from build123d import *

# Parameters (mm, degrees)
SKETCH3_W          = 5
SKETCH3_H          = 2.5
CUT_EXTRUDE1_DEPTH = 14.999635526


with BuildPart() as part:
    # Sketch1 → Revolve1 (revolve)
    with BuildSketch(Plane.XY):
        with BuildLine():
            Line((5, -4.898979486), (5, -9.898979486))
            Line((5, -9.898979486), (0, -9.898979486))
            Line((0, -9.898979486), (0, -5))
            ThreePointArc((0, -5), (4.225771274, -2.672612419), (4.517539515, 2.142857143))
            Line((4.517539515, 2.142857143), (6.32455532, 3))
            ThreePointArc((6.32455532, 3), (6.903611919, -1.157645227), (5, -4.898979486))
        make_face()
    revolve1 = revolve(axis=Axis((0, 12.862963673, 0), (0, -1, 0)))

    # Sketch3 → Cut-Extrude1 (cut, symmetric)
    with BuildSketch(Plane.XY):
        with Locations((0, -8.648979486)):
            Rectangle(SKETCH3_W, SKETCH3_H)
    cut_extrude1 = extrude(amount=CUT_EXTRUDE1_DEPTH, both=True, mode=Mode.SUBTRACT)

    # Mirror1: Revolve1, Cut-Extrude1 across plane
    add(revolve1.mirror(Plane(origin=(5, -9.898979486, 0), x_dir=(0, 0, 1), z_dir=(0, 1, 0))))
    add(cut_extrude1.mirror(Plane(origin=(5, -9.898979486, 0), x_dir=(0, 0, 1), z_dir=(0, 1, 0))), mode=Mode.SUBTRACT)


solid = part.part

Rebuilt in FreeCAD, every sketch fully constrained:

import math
import FreeCAD as App
import Part
import Sketcher

V = App.Vector


def add_polygon(sketch, points):
    """Adds a closed chain of lines whose ends are joined by coincident constraints."""
    first, n = sketch.GeometryCount, len(points)
    for a, b in zip(points, points[1:] + points[:1]):
        sketch.addGeometry(Part.LineSegment(App.Vector(*a, 0), App.Vector(*b, 0)), False)
    for i in range(n):
        sketch.addConstraint(Sketcher.Constraint("Coincident", first + i, 2, first + (i + 1) % n, 1))

doc = App.newDocument("Part")
body = doc.addObject("PartDesign::Body", "Body")

# Sketch on XY plane
sketch1 = doc.addObject("Sketcher::SketchObject", "Sketch")
body.addObject(sketch1)
sketch1.AttachmentSupport = (doc.XY_Plane, [""])
sketch1.MapMode = "FlatFace"
sketch1.addGeometry(Part.LineSegment(V(5, -9.898979, 0), V(5, -4.898979, 0)), False)
sketch1.addGeometry(Part.ArcOfCircle(Part.Circle(V(0, 0, 0), V(0, 0, 1), 7), math.radians(-44.415309), math.radians(25.376934)), False)
sketch1.addGeometry(Part.LineSegment(V(6.324555, 3, 0), V(4.51754, 2.142857, 0)), False)
sketch1.addGeometry(Part.ArcOfCircle(Part.Circle(V(0, 0, 0), V(0, 0, 1), 5), math.radians(-90), math.radians(25.376934)), False)
sketch1.addGeometry(Part.LineSegment(V(0, -5, 0), V(0, -9.898979, 0)), False)
sketch1.addGeometry(Part.LineSegment(V(0, -9.898979, 0), V(5, -9.898979, 0)), False)
sketch1.addConstraint(Sketcher.Constraint("Coincident", 0, 2, 1, 1))
sketch1.addConstraint(Sketcher.Constraint("Coincident", 1, 2, 2, 1))
sketch1.addConstraint(Sketcher.Constraint("Coincident", 2, 2, 3, 2))
sketch1.addConstraint(Sketcher.Constraint("Coincident", 3, 1, 4, 1))
sketch1.addConstraint(Sketcher.Constraint("Coincident", 4, 2, 5, 1))
sketch1.addConstraint(Sketcher.Constraint("Coincident", 5, 2, 0, 1))
sketch1.addConstraint(Sketcher.Constraint("Vertical", 0))
sketch1.addConstraint(Sketcher.Constraint("Vertical", 4))
sketch1.addConstraint(Sketcher.Constraint("Horizontal", 5))
sketch1.addConstraint(Sketcher.Constraint("Coincident", 1, 3, -1, 1))
sketch1.addConstraint(Sketcher.Constraint("Coincident", 3, 3, -1, 1))
sketch1.addConstraint(Sketcher.Constraint("PointOnObject", 3, 1, -2))
sketch1.addConstraint(Sketcher.Constraint("Equal", 5, 0))
sketch1.addConstraint(Sketcher.Constraint("Radius", 1, 7.0))
sketch1.addConstraint(Sketcher.Constraint("Radius", 3, 5.0))
sketch1.addConstraint(Sketcher.Constraint("DistanceX", 5, 1, 5, 2, 5.0))
sketch1.addConstraint(Sketcher.Constraint("DistanceY", -1, 1, 1, 2, 3.0))
sketch1.addConstraint(Sketcher.Constraint("DistanceX", -1, 1, 2, 2, 4.51754))
revolution = doc.addObject("PartDesign::Revolution", "Revolution")
body.addObject(revolution)
revolution.Profile = sketch1
revolution.ReferenceAxis = (sketch1, ["V_Axis"])
revolution.Angle = 360

# Sketch on XY plane
sketch2 = doc.addObject("Sketcher::SketchObject", "Sketch001")
body.addObject(sketch2)
sketch2.AttachmentSupport = (doc.XY_Plane, [""])
sketch2.MapMode = "FlatFace"
add_polygon(sketch2, [(-2.5, -7.398979), (-2.5, -9.898979), (2.5, -9.898979), (2.5, -7.398979)])  # lines 0-3
sketch2.addConstraint(Sketcher.Constraint("Vertical", 0))
sketch2.addConstraint(Sketcher.Constraint("Horizontal", 1))
sketch2.addConstraint(Sketcher.Constraint("Vertical", 2))
sketch2.addConstraint(Sketcher.Constraint("Horizontal", 3))
sketch2.addConstraint(Sketcher.Constraint("DistanceX", 1, 1, 1, 2, 5.0))
sketch2.addConstraint(Sketcher.Constraint("DistanceY", 0, 2, 0, 1, 2.5))
sketch2.addConstraint(Sketcher.Constraint("DistanceX", 0, 2, -1, 1, 2.5))
sketch2.addConstraint(Sketcher.Constraint("DistanceY", 0, 2, -1, 1, 9.898979))
pocket1 = doc.addObject("PartDesign::Pocket", "Pocket")
body.addObject(pocket1)
pocket1.Profile = sketch2
pocket1.Length = 29.999271
pocket1.Midplane = True
doc.recompute()

datumplane = doc.addObject("PartDesign::Plane", "DatumPlane")
body.addObject(datumplane)
datumplane.AttachmentSupport = (doc.XZ_Plane, [""])
datumplane.MapMode = "FlatFace"
datumplane.AttachmentOffset = App.Placement(V(0, 0, 9.898979), App.Rotation())
mirrored = doc.addObject("PartDesign::Mirrored", "Mirrored")
body.addObject(mirrored)
mirrored.Originals = [revolution, pocket1]
mirrored.MirrorPlane = (datumplane, [""])
body.Tip = mirrored

doc.recompute()
